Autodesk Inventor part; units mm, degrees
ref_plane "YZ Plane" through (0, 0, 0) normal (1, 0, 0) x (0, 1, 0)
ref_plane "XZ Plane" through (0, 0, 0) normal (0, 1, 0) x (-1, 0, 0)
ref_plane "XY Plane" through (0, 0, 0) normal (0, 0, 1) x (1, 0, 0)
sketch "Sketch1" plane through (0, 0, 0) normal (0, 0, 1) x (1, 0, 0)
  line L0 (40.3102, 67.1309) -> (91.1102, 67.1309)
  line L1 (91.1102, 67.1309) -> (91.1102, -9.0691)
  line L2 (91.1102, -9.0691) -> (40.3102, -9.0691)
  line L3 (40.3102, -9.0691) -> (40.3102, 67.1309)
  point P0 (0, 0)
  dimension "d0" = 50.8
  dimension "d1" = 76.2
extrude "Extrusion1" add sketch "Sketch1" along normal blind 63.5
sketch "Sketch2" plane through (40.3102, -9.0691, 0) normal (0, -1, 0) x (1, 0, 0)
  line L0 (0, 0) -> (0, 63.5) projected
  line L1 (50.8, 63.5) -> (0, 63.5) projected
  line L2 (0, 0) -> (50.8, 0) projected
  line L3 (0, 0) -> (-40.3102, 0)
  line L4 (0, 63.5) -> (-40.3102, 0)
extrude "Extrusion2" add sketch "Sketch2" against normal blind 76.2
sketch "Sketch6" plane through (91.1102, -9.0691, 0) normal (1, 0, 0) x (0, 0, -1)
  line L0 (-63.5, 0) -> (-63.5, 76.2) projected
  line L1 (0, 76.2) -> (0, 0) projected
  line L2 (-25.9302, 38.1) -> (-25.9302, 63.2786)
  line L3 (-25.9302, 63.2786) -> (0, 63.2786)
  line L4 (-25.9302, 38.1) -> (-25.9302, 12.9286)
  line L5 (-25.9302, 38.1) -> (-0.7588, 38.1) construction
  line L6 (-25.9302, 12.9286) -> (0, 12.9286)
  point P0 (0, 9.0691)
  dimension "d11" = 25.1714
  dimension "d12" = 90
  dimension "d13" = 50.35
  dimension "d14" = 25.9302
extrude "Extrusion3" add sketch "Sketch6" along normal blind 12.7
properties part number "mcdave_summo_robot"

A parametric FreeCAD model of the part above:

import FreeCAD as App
import Part
import Sketcher
from FreeCAD import Vector
Q = App.Units.Quantity

doc = App.newDocument("Part")
body = doc.addObject("PartDesign::Body", "Body")

# Sketch on XY plane
sketch1 = doc.addObject("Sketcher::SketchObject", "Sketch")
body.addObject(sketch1)
sketch1.AttachmentSupport = (doc.XY_Plane, [""])
sketch1.MapMode = "FlatFace"
sketch1.addGeometry([
    Part.LineSegment(Vector(91, 67, 0), Vector(40, 67, 0)),
    Part.LineSegment(Vector(40, 67, 0), Vector(40, -9, 0)),
    Part.LineSegment(Vector(40, -9, 0), Vector(91, -9, 0)),
    Part.LineSegment(Vector(91, -9, 0), Vector(91, 67, 0)),
], False)
sketch1.addConstraint([
    Sketcher.Constraint("Coincident", 0, 2, 1, 1),
    Sketcher.Constraint("Coincident", 1, 2, 2, 1),
    Sketcher.Constraint("Coincident", 2, 2, 3, 1),
    Sketcher.Constraint("Coincident", 3, 2, 0, 1),
    Sketcher.Constraint("Horizontal", 0),
    Sketcher.Constraint("Vertical", 1),
    Sketcher.Constraint("Horizontal", 2),
    Sketcher.Constraint("Vertical", 3),
    Sketcher.Constraint("DistanceX", 0, 2, 0, 1, Q("2 in")),
    Sketcher.Constraint("DistanceY", 1, 2, 1, 1, Q("3 in")),
    Sketcher.Constraint("DistanceX", -1, 1, 0, 2, Q("40.3102 mm")),
    Sketcher.Constraint("DistanceY", -1, 1, 0, 2, Q("67.131 mm")),
])
pad1 = doc.addObject("PartDesign::Pad", "Pad")
body.addObject(pad1)
pad1.Profile = sketch1
pad1.Length = Q("2.5 in")

# Sketch on XZ plane
sketch2 = doc.addObject("Sketcher::SketchObject", "Sketch001")
body.addObject(sketch2)
sketch2.AttachmentSupport = (doc.XZ_Plane, [""])
sketch2.MapMode = "FlatFace"
sketch2.AttachmentOffset = App.Placement(Vector(0, 0, 9.0691), App.Rotation())
sketch2.addGeometry([
    Part.LineSegment(Vector(0, 0, 0), Vector(40, 0, 0)),
    Part.LineSegment(Vector(40, 0, 0), Vector(40, 64, 0)),
    Part.LineSegment(Vector(40, 64, 0), Vector(0, 0, 0)),
], False)
sketch2.addConstraint([
    Sketcher.Constraint("Coincident", 0, 2, 1, 1),
    Sketcher.Constraint("Coincident", 1, 2, 2, 1),
    Sketcher.Constraint("Coincident", 2, 2, 0, 1),
    Sketcher.Constraint("Horizontal", 0),
    Sketcher.Constraint("Vertical", 1),
    Sketcher.Constraint("Coincident", 2, 2, -1, 1),
    Sketcher.Constraint("DistanceY", 1, 1, 1, 2, Q("2.5 in")),
    Sketcher.Constraint("DistanceX", 0, 1, 0, 2, Q("40.3102 mm")),
])
pad2 = doc.addObject("PartDesign::Pad", "Pad001")
body.addObject(pad2)
pad2.Profile = sketch2
pad2.Length = Q("3 in")
pad2.Reversed = True

# Sketch on YZ plane
sketch3 = doc.addObject("Sketcher::SketchObject", "Sketch002")
body.addObject(sketch3)
sketch3.AttachmentSupport = (doc.YZ_Plane, [""])
sketch3.MapMode = "FlatFace"
sketch3.AttachmentOffset = App.Placement(Vector(0, 0, 91.1102), App.Rotation())
sketch3.addGeometry([
    Part.LineSegment(Vector(4, 0, 0), Vector(54, 0, 0)),
    Part.LineSegment(Vector(54, 0, 0), Vector(54, 26, 0)),
    Part.LineSegment(Vector(54, 26, 0), Vector(4, 26, 0)),
    Part.LineSegment(Vector(4, 26, 0), Vector(4, 0, 0)),
], False)
sketch3.addConstraint([
    Sketcher.Constraint("Coincident", 0, 2, 1, 1),
    Sketcher.Constraint("Coincident", 1, 2, 2, 1),
    Sketcher.Constraint("Coincident", 2, 2, 3, 1),
    Sketcher.Constraint("Coincident", 3, 2, 0, 1),
    Sketcher.Constraint("Horizontal", 0),
    Sketcher.Constraint("Vertical", 1),
    Sketcher.Constraint("Horizontal", 2),
    Sketcher.Constraint("Vertical", 3),
    Sketcher.Constraint("PointOnObject", 0, 2, -1),
    Sketcher.Constraint("DistanceX", 0, 1, 0, 2, Q("50.35 mm")),
    Sketcher.Constraint("DistanceY", 1, 1, 1, 2, Q("25.9302 mm")),
    Sketcher.Constraint("DistanceX", -1, 1, 0, 2, Q("54.2095 mm")),
])
pad3 = doc.addObject("PartDesign::Pad", "Pad002")
body.addObject(pad3)
pad3.Profile = sketch3
pad3.Length = Q("0.5 in")

doc.recompute()
